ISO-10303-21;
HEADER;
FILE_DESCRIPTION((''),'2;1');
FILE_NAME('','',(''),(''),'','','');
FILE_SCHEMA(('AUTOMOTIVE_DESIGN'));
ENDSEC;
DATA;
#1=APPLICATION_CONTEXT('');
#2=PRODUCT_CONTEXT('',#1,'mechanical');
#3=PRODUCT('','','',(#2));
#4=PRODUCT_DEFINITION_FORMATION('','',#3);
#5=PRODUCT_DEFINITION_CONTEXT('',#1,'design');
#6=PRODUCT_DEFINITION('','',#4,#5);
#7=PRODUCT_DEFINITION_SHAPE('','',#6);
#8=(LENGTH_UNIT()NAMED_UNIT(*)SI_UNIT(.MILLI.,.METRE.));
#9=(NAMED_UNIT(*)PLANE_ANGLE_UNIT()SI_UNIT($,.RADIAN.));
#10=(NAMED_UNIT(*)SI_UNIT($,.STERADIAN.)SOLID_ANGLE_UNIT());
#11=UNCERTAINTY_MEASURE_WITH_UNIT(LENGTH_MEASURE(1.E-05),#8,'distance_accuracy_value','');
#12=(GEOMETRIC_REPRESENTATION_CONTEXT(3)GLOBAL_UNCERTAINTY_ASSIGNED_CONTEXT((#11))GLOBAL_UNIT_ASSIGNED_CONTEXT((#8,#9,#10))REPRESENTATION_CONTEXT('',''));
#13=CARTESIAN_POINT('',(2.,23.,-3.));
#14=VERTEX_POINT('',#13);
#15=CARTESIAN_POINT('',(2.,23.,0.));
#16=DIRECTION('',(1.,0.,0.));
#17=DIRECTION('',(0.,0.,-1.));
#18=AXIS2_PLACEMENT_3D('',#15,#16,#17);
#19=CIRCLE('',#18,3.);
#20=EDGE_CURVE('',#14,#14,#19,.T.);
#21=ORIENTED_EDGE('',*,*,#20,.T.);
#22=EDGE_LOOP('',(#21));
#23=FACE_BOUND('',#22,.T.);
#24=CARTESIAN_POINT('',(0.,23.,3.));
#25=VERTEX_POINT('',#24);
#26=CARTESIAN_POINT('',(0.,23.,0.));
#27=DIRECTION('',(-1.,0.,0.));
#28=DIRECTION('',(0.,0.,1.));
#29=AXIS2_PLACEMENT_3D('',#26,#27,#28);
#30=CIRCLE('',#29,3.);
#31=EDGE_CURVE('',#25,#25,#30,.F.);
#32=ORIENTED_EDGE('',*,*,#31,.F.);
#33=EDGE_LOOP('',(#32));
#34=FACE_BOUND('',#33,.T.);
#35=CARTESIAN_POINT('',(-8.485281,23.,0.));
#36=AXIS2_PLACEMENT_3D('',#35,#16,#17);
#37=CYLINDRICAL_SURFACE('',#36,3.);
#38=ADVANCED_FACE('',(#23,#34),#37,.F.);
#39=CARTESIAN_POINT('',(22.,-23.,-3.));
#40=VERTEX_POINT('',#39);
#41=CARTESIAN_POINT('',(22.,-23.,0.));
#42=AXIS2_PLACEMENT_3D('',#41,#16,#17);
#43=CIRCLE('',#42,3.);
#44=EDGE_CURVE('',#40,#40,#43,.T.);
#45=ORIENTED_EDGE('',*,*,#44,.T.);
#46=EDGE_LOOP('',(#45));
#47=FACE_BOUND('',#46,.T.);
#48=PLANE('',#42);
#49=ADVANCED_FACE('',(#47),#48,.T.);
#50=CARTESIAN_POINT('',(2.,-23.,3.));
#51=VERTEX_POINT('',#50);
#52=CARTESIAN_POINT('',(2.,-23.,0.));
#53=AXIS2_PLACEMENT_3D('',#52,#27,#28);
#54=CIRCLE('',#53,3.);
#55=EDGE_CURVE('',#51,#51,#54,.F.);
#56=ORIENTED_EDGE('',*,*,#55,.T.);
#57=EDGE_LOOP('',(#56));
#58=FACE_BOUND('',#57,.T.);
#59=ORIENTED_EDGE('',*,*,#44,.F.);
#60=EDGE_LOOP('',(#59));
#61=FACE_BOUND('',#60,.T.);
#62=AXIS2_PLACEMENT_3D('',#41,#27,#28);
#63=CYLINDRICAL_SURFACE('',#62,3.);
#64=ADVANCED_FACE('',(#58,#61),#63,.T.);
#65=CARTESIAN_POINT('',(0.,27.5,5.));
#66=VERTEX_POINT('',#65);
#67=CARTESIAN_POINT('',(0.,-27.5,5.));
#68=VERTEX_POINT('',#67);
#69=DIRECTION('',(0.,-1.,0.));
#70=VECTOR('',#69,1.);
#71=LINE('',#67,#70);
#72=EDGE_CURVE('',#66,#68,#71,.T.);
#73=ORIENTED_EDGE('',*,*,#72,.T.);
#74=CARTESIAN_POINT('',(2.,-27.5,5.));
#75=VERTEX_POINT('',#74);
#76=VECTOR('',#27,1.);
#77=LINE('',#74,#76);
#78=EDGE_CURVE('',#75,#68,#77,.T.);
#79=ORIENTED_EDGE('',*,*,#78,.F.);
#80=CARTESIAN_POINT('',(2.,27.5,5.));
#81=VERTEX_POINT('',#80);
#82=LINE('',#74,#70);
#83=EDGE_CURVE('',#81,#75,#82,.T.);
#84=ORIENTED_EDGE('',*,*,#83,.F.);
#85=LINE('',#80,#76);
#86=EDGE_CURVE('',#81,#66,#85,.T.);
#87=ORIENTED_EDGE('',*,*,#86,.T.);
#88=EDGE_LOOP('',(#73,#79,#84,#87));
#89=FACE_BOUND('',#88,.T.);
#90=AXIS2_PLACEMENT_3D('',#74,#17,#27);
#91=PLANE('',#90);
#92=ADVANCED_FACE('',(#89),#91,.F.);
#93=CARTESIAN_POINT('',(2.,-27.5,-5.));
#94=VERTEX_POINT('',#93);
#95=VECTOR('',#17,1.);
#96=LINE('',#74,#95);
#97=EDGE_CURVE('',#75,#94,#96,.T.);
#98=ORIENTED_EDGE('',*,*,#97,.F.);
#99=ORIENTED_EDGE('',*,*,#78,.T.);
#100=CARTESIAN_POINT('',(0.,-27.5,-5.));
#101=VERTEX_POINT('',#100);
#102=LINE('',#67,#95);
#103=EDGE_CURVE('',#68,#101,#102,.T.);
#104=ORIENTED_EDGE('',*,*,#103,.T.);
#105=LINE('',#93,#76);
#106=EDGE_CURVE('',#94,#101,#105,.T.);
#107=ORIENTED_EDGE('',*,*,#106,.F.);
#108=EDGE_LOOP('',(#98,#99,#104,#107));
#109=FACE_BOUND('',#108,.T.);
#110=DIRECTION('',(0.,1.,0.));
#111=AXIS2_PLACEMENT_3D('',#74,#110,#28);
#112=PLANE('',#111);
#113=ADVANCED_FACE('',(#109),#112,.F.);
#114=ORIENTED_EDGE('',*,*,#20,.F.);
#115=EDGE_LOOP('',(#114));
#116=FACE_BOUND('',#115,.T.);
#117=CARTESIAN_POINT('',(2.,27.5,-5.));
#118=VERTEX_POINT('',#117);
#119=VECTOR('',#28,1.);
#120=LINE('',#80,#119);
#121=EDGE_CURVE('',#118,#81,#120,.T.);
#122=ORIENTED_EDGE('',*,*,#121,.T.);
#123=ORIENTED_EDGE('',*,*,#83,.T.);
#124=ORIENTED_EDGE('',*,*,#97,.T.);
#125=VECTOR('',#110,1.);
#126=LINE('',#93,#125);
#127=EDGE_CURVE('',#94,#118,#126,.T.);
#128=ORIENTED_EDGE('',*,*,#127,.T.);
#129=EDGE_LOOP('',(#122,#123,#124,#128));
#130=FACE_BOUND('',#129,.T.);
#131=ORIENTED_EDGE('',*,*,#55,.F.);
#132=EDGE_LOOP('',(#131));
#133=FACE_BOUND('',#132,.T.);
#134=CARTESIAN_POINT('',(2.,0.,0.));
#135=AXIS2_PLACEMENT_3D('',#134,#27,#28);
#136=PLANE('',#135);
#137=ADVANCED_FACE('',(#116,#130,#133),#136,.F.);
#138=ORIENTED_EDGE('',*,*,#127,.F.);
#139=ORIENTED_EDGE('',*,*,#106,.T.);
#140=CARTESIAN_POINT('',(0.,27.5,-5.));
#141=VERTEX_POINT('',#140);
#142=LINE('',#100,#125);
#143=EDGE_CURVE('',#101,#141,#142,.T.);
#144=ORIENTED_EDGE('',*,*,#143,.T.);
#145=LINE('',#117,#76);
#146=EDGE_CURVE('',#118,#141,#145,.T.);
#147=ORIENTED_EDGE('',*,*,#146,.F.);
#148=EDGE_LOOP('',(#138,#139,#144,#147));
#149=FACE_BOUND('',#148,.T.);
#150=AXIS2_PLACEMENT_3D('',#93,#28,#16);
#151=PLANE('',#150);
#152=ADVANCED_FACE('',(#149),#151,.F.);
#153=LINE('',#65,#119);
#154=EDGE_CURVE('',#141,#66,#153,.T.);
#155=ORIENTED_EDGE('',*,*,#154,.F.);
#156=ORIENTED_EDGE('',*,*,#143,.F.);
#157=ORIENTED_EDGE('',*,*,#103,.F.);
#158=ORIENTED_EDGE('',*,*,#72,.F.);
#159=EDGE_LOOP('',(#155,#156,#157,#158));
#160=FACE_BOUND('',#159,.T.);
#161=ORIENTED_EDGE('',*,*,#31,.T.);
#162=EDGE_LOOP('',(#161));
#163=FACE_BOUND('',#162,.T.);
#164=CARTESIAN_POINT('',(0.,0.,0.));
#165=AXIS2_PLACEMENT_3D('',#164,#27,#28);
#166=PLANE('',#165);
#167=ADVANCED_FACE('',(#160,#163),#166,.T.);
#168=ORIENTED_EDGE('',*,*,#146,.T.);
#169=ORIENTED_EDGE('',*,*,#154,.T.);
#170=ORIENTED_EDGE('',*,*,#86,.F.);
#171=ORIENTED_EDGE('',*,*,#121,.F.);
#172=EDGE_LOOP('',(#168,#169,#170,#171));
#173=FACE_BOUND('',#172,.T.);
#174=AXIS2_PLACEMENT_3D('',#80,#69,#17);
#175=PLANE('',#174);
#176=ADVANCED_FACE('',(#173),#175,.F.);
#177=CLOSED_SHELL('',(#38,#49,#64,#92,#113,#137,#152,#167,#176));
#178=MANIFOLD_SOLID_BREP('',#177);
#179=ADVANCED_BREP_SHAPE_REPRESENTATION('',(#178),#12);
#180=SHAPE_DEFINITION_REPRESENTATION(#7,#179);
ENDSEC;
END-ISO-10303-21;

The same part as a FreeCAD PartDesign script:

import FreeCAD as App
import Part
import Sketcher

V = App.Vector


def add_polygon(sketch, points):
    """Adds a closed chain of lines whose ends are joined by coincident constraints."""
    first, n = sketch.GeometryCount, len(points)
    for a, b in zip(points, points[1:] + points[:1]):
        sketch.addGeometry(Part.LineSegment(App.Vector(*a, 0), App.Vector(*b, 0)), False)
    for i in range(n):
        sketch.addConstraint(Sketcher.Constraint("Coincident", first + i, 2, first + (i + 1) % n, 1))

doc = App.newDocument("Part")
params = doc.addObject("Spreadsheet::Sheet", "Params")
for row, (alias, value) in enumerate([
    ("sketch1_width", "55 mm"),
    ("sketch1_height", "10 mm"),
    ("pad1_length", "2 mm"),
    ("sketch2_diameter", "6 mm"),
    ("pocket1_length", "2 mm"),
    ("sketch3_diameter", "6 mm"),
    ("pad2_length", "20 mm"),
], start=1):
    params.set(f"A{row}", alias)
    params.set(f"B{row}", "=" + value)
    params.setAlias(f"B{row}", alias)

body = doc.addObject("PartDesign::Body", "Body")

# Sketch on YZ plane
sketch1 = body.newObject("Sketcher::SketchObject", "Sketch")
sketch1.AttachmentSupport = (doc.getObject("YZ_Plane"), [""])
sketch1.MapMode = "FlatFace"
add_polygon(sketch1, [(28, 5), (-28, 5), (-28, -5), (28, -5)])  # lines 0-3
sketch1.addConstraint([
    Sketcher.Constraint("Horizontal", 0),
    Sketcher.Constraint("Vertical", 1),
    Sketcher.Constraint("Horizontal", 2),
    Sketcher.Constraint("Vertical", 3),
    Sketcher.Constraint("Symmetric", 0, 2, 2, 2, -1, 1),
    Sketcher.Constraint("DistanceX", 0, 2, 0, 1, 55.0),
    Sketcher.Constraint("DistanceY", 1, 2, 1, 1, 10.0),
])
sketch1.setExpression("Constraints[9]", "Params.sketch1_width")
sketch1.setExpression("Constraints[10]", "Params.sketch1_height")
pad1 = body.newObject("PartDesign::Pad", "Pad")
pad1.Profile = sketch1
pad1.setExpression("Length", "Params.pad1_length")

# Sketch on YZ plane
sketch2 = body.newObject("Sketcher::SketchObject", "Sketch001")
sketch2.AttachmentSupport = (doc.getObject("YZ_Plane"), [""])
sketch2.MapMode = "FlatFace"
sketch2.AttachmentOffset = App.Placement(V(0, 0, 2), App.Rotation())
sketch2.addGeometry(Part.Circle(V(23, 0, 0), V(0, 0, 1), 3), False)
sketch2.addConstraint([
    Sketcher.Constraint("PointOnObject", 0, 3, -1),
    Sketcher.Constraint("Diameter", 0, 6.0),
    Sketcher.Constraint("DistanceX", -1, 1, 0, 3, 23.0),
])
sketch2.setExpression("Constraints[1]", "Params.sketch2_diameter")
pocket1 = body.newObject("PartDesign::Pocket", "Pocket")
pocket1.Profile = sketch2
pocket1.setExpression("Length", "Params.pocket1_length")

# Sketch on YZ plane
sketch3 = body.newObject("Sketcher::SketchObject", "Sketch002")
sketch3.AttachmentSupport = (doc.getObject("YZ_Plane"), [""])
sketch3.MapMode = "FlatFace"
sketch3.AttachmentOffset = App.Placement(V(0, 0, 2), App.Rotation())
sketch3.addGeometry(Part.Circle(V(-23, 0, 0), V(0, 0, 1), 3), False)
sketch3.addConstraint([
    Sketcher.Constraint("PointOnObject", 0, 3, -1),
    Sketcher.Constraint("Diameter", 0, 6.0),
    Sketcher.Constraint("DistanceX", 0, 3, -1, 1, 23.0),
])
sketch3.setExpression("Constraints[1]", "Params.sketch3_diameter")
pad2 = body.newObject("PartDesign::Pad", "Pad001")
pad2.Profile = sketch3
pad2.setExpression("Length", "Params.pad2_length")

doc.recompute()
